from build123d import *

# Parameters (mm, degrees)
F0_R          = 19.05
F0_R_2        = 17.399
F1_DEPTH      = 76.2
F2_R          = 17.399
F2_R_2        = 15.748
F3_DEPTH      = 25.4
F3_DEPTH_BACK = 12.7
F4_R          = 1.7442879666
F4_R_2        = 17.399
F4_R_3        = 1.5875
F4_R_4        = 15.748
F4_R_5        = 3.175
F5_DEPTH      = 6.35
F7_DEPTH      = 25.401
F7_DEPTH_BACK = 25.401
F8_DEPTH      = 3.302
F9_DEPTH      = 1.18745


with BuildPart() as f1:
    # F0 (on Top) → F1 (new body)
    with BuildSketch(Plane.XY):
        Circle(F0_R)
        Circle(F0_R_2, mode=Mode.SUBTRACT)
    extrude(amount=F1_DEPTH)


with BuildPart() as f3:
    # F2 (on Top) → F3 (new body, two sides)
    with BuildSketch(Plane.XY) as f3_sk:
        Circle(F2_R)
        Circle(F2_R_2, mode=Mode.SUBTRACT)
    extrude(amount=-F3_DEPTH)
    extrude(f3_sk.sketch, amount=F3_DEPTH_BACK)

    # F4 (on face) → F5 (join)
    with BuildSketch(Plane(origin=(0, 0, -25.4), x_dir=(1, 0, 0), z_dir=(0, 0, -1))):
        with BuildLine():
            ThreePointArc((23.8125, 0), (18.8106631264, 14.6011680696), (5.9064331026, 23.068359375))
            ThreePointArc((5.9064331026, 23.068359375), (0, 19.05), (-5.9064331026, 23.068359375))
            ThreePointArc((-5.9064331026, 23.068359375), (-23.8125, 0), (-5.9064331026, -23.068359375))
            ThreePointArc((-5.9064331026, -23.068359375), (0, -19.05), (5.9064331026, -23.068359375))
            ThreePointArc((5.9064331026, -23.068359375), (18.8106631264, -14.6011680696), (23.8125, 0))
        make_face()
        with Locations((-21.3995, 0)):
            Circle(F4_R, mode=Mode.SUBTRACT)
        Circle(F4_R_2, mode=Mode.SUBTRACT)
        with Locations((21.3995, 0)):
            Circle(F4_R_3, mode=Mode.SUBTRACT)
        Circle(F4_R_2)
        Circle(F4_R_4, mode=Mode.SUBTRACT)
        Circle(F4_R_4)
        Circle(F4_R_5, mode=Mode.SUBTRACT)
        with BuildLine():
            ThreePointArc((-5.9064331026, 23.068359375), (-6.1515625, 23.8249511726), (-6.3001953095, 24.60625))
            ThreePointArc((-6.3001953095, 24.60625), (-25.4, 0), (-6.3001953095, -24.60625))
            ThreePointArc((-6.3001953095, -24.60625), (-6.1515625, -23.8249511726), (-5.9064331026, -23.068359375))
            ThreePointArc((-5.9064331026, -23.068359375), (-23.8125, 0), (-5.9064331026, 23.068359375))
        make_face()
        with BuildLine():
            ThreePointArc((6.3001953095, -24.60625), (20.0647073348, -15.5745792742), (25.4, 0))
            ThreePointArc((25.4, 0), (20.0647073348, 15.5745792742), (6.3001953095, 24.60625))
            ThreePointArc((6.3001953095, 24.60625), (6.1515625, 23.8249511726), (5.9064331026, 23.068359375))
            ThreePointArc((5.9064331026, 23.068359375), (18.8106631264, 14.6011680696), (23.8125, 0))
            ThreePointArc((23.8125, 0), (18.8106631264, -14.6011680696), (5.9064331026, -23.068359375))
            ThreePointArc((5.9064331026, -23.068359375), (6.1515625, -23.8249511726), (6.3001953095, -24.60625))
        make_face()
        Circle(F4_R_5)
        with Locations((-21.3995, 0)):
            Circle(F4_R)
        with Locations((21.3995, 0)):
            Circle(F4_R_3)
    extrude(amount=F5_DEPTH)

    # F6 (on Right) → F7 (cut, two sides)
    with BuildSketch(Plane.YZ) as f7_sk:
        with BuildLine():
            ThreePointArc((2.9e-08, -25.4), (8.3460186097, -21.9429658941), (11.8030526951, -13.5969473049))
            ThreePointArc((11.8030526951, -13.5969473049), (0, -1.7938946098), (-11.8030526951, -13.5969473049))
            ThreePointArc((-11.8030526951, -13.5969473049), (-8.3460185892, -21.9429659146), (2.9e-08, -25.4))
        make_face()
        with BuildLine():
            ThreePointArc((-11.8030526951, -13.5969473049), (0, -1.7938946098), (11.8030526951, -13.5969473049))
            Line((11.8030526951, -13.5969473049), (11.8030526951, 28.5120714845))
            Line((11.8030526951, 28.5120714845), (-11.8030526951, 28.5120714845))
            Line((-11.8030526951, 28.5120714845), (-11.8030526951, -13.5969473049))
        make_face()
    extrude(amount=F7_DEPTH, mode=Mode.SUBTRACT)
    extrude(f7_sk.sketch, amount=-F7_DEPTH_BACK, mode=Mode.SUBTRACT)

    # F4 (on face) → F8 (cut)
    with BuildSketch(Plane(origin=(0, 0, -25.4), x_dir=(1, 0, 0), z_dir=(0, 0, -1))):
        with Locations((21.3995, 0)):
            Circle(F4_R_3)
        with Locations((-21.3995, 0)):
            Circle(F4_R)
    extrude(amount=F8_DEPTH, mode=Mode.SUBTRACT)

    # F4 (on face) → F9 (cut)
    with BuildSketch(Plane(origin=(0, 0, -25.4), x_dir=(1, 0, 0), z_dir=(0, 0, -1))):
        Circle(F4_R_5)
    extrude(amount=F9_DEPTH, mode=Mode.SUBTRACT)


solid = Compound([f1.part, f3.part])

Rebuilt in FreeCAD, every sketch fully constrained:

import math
import FreeCAD as App
import Part
import Sketcher
Q = App.Units.Quantity

doc = App.newDocument("Part")
body = doc.addObject("PartDesign::Body", "Body")

# Sketch on XY plane
sketch1 = body.newObject("Sketcher::SketchObject", "Sketch")
sketch1.AttachmentSupport = (doc.getObject("XY_Plane"), [""])
sketch1.MapMode = "FlatFace"
sketch1.addGeometry(Part.Circle(App.Vector(0, 0, 0), App.Vector(0, 0, 1), 19), False)
sketch1.addGeometry(Part.Circle(App.Vector(0, 0, 0), App.Vector(0, 0, 1), 17), False)
sketch1.addConstraint(Sketcher.Constraint("Coincident", 0, 3, -1, 1))
sketch1.addConstraint(Sketcher.Constraint("Coincident", 1, 3, -1, 1))
sketch1.addConstraint(Sketcher.Constraint("Diameter", 0, Q("1.5 in")))
sketch1.addConstraint(Sketcher.Constraint("Diameter", 1, Q("1.37 in")))
pad1 = body.newObject("PartDesign::Pad", "Pad")
pad1.Profile = sketch1
pad1.Length = Q("3 in")
body2 = doc.addObject("PartDesign::Body", "Body001")

# Sketch on XY plane
sketch2 = body2.newObject("Sketcher::SketchObject", "Sketch001")
sketch2.AttachmentSupport = (doc.getObject("XY_Plane001"), [""])
sketch2.MapMode = "FlatFace"
sketch2.addGeometry(Part.Circle(App.Vector(0, 0, 0), App.Vector(0, 0, 1), 17), False)
sketch2.addGeometry(Part.Circle(App.Vector(0, 0, 0), App.Vector(0, 0, 1), 16), False)
sketch2.addConstraint(Sketcher.Constraint("Coincident", 0, 3, -1, 1))
sketch2.addConstraint(Sketcher.Constraint("Coincident", 1, 3, -1, 1))
sketch2.addConstraint(Sketcher.Constraint("Diameter", 0, Q("1.37 in")))
sketch2.addConstraint(Sketcher.Constraint("Diameter", 1, Q("1.24 in")))
pad2 = body2.newObject("PartDesign::Pad", "Pad001")
pad2.Profile = sketch2
pad2.Type = "TwoLengths"
pad2.Length = Q("1 in")
pad2.Length2 = Q("0.5 in")
pad2.Reversed = True

# Sketch on XY plane
sketch3 = body2.newObject("Sketcher::SketchObject", "Sketch002")
sketch3.AttachmentSupport = (doc.getObject("XY_Plane001"), [""])
sketch3.MapMode = "FlatFace"
sketch3.AttachmentOffset = App.Placement(App.Vector(0, 0, -1 * 25.4), App.Rotation())
sketch3.addGeometry(Part.ArcOfCircle(Part.Circle(App.Vector(0, -25.4, 0), App.Vector(0, 0, 1), 6.3), math.radians(22), math.radians(158)), False)
sketch3.addGeometry(Part.ArcOfCircle(Part.Circle(App.Vector(0, -25.4, 0), App.Vector(0, 0, 1), 6.3), math.radians(158.46), math.radians(172.82)), False)
sketch3.addGeometry(Part.ArcOfCircle(Part.Circle(App.Vector(0, 0, 0), App.Vector(0, 0, 1), 25.4), math.radians(104), math.radians(256)), False)
sketch3.addGeometry(Part.ArcOfCircle(Part.Circle(App.Vector(0, 25.4, 0), App.Vector(0, 0, 1), 6.3), math.radians(-172.82), math.radians(-158.46)), False)
sketch3.addGeometry(Part.ArcOfCircle(Part.Circle(App.Vector(0, 25.4, 0), App.Vector(0, 0, 1), 6.3), math.radians(-158), math.radians(-22)), False)
sketch3.addGeometry(Part.ArcOfCircle(Part.Circle(App.Vector(0, 25.4, 0), App.Vector(0, 0, 1), 6.3), math.radians(-21.54), math.radians(-7.18)), False)
sketch3.addGeometry(Part.ArcOfCircle(Part.Circle(App.Vector(0, 0, 0), App.Vector(0, 0, 1), 25.4), math.radians(0), math.radians(76)), False)
sketch3.addGeometry(Part.ArcOfCircle(Part.Circle(App.Vector(0, 0, 0), App.Vector(0, 0, 1), 25.4), math.radians(-76), math.radians(0)), False)
sketch3.addGeometry(Part.ArcOfCircle(Part.Circle(App.Vector(0, -25.4, 0), App.Vector(0, 0, 1), 6.3), math.radians(7.18), math.radians(21.54)), False)
sketch3.addConstraint(Sketcher.Constraint("Tangent", 0, 2, 1, 1))
sketch3.addConstraint(Sketcher.Constraint("Coincident", 1, 2, 2, 2))
sketch3.addConstraint(Sketcher.Constraint("Coincident", 2, 1, 3, 1))
sketch3.addConstraint(Sketcher.Constraint("Tangent", 3, 2, 4, 1))
sketch3.addConstraint(Sketcher.Constraint("Tangent", 4, 2, 5, 1))
sketch3.addConstraint(Sketcher.Constraint("Coincident", 5, 2, 6, 2))
sketch3.addConstraint(Sketcher.Constraint("Tangent", 6, 1, 7, 2))
sketch3.addConstraint(Sketcher.Constraint("Coincident", 7, 1, 8, 1))
sketch3.addConstraint(Sketcher.Constraint("Tangent", 8, 2, 0, 1))
sketch3.addConstraint(Sketcher.Constraint("Coincident", 2, 3, -1, 1))
sketch3.addConstraint(Sketcher.Constraint("Coincident", 6, 3, -1, 1))
sketch3.addConstraint(Sketcher.Constraint("Coincident", 5, 3, 3, 3))
sketch3.addConstraint(Sketcher.Constraint("Equal", 0, 1))
sketch3.addConstraint(Sketcher.Constraint("Equal", 1, 3))
sketch3.addConstraint(Sketcher.Constraint("Equal", 2, 6))
sketch3.addConstraint(Sketcher.Constraint("Equal", 6, 7))
sketch3.addConstraint(Sketcher.Constraint("Equal", 5, 8))
sketch3.addConstraint(Sketcher.Constraint("Symmetric", 0, 3, 3, 3, -1, 1))
sketch3.addConstraint(Sketcher.Constraint("Symmetric", 3, 2, 4, 2, -2))
sketch3.addConstraint(Sketcher.Constraint("PointOnObject", 6, 1, -1))
sketch3.addConstraint(Sketcher.Constraint("Horizontal", 0, 2, 8, 2))
sketch3.addConstraint(Sketcher.Constraint("Vertical", 0, 2, 3, 2))
sketch3.addConstraint(Sketcher.Constraint("Radius", 2, Q("1 in")))
sketch3.addConstraint(Sketcher.Constraint("Radius", 0, Q("0.25 in")))
sketch3.addConstraint(Sketcher.Constraint("DistanceY", 0, 3, -1, 1, Q("1 in")))
sketch3.addConstraint(Sketcher.Constraint("DistanceY", 0, 2, -1, 1, 23.068359))
pad3 = body2.newObject("PartDesign::Pad", "Pad002")
pad3.Profile = sketch3
pad3.Length = Q("0.25 in")
pad3.Reversed = True

# Sketch on YZ plane
sketch4 = body2.newObject("Sketcher::SketchObject", "Sketch003")
sketch4.AttachmentSupport = (doc.getObject("YZ_Plane001"), [""])
sketch4.MapMode = "FlatFace"
sketch4.addGeometry(Part.ArcOfCircle(Part.Circle(App.Vector(0, -14, 0), App.Vector(0, 0, 1), 12), math.radians(-90), math.radians(0)), False)
sketch4.addGeometry(Part.LineSegment(App.Vector(12, -14, 0), App.Vector(12, 29, 0)), False)
sketch4.addGeometry(Part.LineSegment(App.Vector(12, 29, 0), App.Vector(-12, 29, 0)), False)
sketch4.addGeometry(Part.LineSegment(App.Vector(-12, 29, 0), App.Vector(-12, -14, 0)), False)
sketch4.addGeometry(Part.ArcOfCircle(Part.Circle(App.Vector(0, -14, 0), App.Vector(0, 0, 1), 12), math.radians(180), math.radians(270)), False)
sketch4.addConstraint(Sketcher.Constraint("Tangent", 0, 2, 1, 1))
sketch4.addConstraint(Sketcher.Constraint("Coincident", 1, 2, 2, 1))
sketch4.addConstraint(Sketcher.Constraint("Coincident", 2, 2, 3, 1))
sketch4.addConstraint(Sketcher.Constraint("Tangent", 3, 2, 4, 1))
sketch4.addConstraint(Sketcher.Constraint("Tangent", 4, 2, 0, 1))
sketch4.addConstraint(Sketcher.Constraint("Vertical", 1))
sketch4.addConstraint(Sketcher.Constraint("Horizontal", 2))
sketch4.addConstraint(Sketcher.Constraint("Vertical", 3))
sketch4.addConstraint(Sketcher.Constraint("Equal", 0, 4))
sketch4.addConstraint(Sketcher.Constraint("PointOnObject", 0, 3, -2))
sketch4.addConstraint(Sketcher.Constraint("PointOnObject", 4, 2, -2))
sketch4.addConstraint(Sketcher.Constraint("DistanceY", 4, 2, -1, 1, Q("1 in")))
sketch4.addConstraint(Sketcher.Constraint("Radius", 0, 11.803053))
sketch4.addConstraint(Sketcher.Constraint("DistanceY", 1, 1, 1, 2, 42.109019))
pocket1 = body2.newObject("PartDesign::Pocket", "Pocket")
pocket1.Profile = sketch4
pocket1.Type = "ThroughAll"
pocket1.Midplane = True

# Sketch on XY plane
sketch5 = body2.newObject("Sketcher::SketchObject", "Sketch004")
sketch5.AttachmentSupport = (doc.getObject("XY_Plane001"), [""])
sketch5.MapMode = "FlatFace"
sketch5.AttachmentOffset = App.Placement(App.Vector(0, 0, -1 * 25.4), App.Rotation())
sketch5.addGeometry(Part.Circle(App.Vector(21.4, 0, 0), App.Vector(0, 0, 1), 1.6), False)
sketch5.addGeometry(Part.Circle(App.Vector(-21.4, 0, 0), App.Vector(0, 0, 1), 1.7), False)
sketch5.addConstraint(Sketcher.Constraint("Symmetric", 0, 3, 1, 3, -1, 1))
sketch5.addConstraint(Sketcher.Constraint("PointOnObject", 0, 3, -1))
sketch5.addConstraint(Sketcher.Constraint("Diameter", 0, Q("0.125 in")))
sketch5.addConstraint(Sketcher.Constraint("DistanceX", 1, 3, 0, 3, Q("1.685 in")))
sketch5.addConstraint(Sketcher.Constraint("Diameter", 1, 3.488576))
pocket2 = body2.newObject("PartDesign::Pocket", "Pocket001")
pocket2.Profile = sketch5
pocket2.Length = Q("0.13 in")

# Sketch on XY plane
sketch6 = body2.newObject("Sketcher::SketchObject", "Sketch005")
sketch6.AttachmentSupport = (doc.getObject("XY_Plane001"), [""])
sketch6.MapMode = "FlatFace"
sketch6.AttachmentOffset = App.Placement(App.Vector(0, 0, -1 * 25.4), App.Rotation())
sketch6.addGeometry(Part.Circle(App.Vector(0, 0, 0), App.Vector(0, 0, 1), 3.2), False)
sketch6.addConstraint(Sketcher.Constraint("Coincident", 0, 3, -1, 1))
sketch6.addConstraint(Sketcher.Constraint("Diameter", 0, Q("0.25 in")))
pocket3 = body2.newObject("PartDesign::Pocket", "Pocket002")
pocket3.Profile = sketch6
pocket3.Length = 1.18745

doc.recompute()
